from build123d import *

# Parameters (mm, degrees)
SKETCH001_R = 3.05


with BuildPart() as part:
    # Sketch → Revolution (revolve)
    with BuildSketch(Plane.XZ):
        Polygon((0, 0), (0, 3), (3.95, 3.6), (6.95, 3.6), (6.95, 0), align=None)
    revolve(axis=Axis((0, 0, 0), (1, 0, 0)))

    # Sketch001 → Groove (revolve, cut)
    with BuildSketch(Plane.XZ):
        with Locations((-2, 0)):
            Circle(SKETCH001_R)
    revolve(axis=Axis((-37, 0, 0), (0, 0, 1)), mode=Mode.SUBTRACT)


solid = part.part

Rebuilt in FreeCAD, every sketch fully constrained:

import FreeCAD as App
import Part
import Sketcher

V = App.Vector
Q = App.Units.Quantity


def add_polygon(sketch, points):
    """Adds a closed chain of lines whose ends are joined by coincident constraints."""
    first, n = sketch.GeometryCount, len(points)
    for a, b in zip(points, points[1:] + points[:1]):
        sketch.addGeometry(Part.LineSegment(App.Vector(*a, 0), App.Vector(*b, 0)), False)
    for i in range(n):
        sketch.addConstraint(Sketcher.Constraint("Coincident", first + i, 2, first + (i + 1) % n, 1))

doc = App.newDocument("Part")
body = doc.addObject("PartDesign::Body", "Body")

# Sketch on XZ plane
sketch1 = body.newObject("Sketcher::SketchObject", "Sketch")
sketch1.AttachmentSupport = (doc.getObject("XZ_Plane"), [""])
sketch1.MapMode = "FlatFace"
add_polygon(sketch1, [(0, 3), (0, 0), (7, 0), (7, 3.6), (4, 3.6)])  # lines 0-4
sketch1.addConstraint([
    Sketcher.Constraint("Vertical", 0),
    Sketcher.Constraint("Horizontal", 1),
    Sketcher.Constraint("Vertical", 2),
    Sketcher.Constraint("Horizontal", 3),
    Sketcher.Constraint("Coincident", 0, 2, -1, 1),
    Sketcher.Constraint("Equal", 3, 0),
    Sketcher.Constraint("DistanceX", 3, 2, 3, 1, Q("3 mm")),
    Sketcher.Constraint("DistanceY", 2, 1, 2, 2, Q("3.6 mm")),
    Sketcher.Constraint("DistanceX", 1, 1, 1, 2, Q("6.95 mm")),
])
revolution = body.newObject("PartDesign::Revolution", "Revolution")
revolution.Profile = sketch1
revolution.ReferenceAxis = (sketch1, ["H_Axis"])
revolution.Angle = 360

# Sketch on XZ plane
sketch2 = body.newObject("Sketcher::SketchObject", "Sketch001")
sketch2.AttachmentSupport = (doc.getObject("XZ_Plane"), [""])
sketch2.MapMode = "FlatFace"
sketch2.addGeometry(Part.Circle(V(-2, 0, 0), V(0, 0, 1), 3), False)
sketch2.addGeometry(Part.LineSegment(V(-37, 0, 0), V(-37, 10, 0)), True)  # axis
sketch2.addConstraint([
    Sketcher.Constraint("Vertical", 1),
    Sketcher.Constraint("PointOnObject", 0, 3, -1),
    Sketcher.Constraint("PointOnObject", 1, 1, -1),
    Sketcher.Constraint("Diameter", 0, Q("6.1 mm")),
    Sketcher.Constraint("DistanceY", 1, 1, 1, 2, Q("10 mm")),
    Sketcher.Constraint("DistanceX", 0, 3, -1, 1, Q("2 mm")),
    Sketcher.Constraint("DistanceX", 1, 1, -1, 1, Q("37 mm")),
])
groove = body.newObject("PartDesign::Groove", "Groove")
groove.Profile = sketch2
groove.ReferenceAxis = (sketch2, ["Axis0"])
groove.Angle = 360

doc.recompute()
